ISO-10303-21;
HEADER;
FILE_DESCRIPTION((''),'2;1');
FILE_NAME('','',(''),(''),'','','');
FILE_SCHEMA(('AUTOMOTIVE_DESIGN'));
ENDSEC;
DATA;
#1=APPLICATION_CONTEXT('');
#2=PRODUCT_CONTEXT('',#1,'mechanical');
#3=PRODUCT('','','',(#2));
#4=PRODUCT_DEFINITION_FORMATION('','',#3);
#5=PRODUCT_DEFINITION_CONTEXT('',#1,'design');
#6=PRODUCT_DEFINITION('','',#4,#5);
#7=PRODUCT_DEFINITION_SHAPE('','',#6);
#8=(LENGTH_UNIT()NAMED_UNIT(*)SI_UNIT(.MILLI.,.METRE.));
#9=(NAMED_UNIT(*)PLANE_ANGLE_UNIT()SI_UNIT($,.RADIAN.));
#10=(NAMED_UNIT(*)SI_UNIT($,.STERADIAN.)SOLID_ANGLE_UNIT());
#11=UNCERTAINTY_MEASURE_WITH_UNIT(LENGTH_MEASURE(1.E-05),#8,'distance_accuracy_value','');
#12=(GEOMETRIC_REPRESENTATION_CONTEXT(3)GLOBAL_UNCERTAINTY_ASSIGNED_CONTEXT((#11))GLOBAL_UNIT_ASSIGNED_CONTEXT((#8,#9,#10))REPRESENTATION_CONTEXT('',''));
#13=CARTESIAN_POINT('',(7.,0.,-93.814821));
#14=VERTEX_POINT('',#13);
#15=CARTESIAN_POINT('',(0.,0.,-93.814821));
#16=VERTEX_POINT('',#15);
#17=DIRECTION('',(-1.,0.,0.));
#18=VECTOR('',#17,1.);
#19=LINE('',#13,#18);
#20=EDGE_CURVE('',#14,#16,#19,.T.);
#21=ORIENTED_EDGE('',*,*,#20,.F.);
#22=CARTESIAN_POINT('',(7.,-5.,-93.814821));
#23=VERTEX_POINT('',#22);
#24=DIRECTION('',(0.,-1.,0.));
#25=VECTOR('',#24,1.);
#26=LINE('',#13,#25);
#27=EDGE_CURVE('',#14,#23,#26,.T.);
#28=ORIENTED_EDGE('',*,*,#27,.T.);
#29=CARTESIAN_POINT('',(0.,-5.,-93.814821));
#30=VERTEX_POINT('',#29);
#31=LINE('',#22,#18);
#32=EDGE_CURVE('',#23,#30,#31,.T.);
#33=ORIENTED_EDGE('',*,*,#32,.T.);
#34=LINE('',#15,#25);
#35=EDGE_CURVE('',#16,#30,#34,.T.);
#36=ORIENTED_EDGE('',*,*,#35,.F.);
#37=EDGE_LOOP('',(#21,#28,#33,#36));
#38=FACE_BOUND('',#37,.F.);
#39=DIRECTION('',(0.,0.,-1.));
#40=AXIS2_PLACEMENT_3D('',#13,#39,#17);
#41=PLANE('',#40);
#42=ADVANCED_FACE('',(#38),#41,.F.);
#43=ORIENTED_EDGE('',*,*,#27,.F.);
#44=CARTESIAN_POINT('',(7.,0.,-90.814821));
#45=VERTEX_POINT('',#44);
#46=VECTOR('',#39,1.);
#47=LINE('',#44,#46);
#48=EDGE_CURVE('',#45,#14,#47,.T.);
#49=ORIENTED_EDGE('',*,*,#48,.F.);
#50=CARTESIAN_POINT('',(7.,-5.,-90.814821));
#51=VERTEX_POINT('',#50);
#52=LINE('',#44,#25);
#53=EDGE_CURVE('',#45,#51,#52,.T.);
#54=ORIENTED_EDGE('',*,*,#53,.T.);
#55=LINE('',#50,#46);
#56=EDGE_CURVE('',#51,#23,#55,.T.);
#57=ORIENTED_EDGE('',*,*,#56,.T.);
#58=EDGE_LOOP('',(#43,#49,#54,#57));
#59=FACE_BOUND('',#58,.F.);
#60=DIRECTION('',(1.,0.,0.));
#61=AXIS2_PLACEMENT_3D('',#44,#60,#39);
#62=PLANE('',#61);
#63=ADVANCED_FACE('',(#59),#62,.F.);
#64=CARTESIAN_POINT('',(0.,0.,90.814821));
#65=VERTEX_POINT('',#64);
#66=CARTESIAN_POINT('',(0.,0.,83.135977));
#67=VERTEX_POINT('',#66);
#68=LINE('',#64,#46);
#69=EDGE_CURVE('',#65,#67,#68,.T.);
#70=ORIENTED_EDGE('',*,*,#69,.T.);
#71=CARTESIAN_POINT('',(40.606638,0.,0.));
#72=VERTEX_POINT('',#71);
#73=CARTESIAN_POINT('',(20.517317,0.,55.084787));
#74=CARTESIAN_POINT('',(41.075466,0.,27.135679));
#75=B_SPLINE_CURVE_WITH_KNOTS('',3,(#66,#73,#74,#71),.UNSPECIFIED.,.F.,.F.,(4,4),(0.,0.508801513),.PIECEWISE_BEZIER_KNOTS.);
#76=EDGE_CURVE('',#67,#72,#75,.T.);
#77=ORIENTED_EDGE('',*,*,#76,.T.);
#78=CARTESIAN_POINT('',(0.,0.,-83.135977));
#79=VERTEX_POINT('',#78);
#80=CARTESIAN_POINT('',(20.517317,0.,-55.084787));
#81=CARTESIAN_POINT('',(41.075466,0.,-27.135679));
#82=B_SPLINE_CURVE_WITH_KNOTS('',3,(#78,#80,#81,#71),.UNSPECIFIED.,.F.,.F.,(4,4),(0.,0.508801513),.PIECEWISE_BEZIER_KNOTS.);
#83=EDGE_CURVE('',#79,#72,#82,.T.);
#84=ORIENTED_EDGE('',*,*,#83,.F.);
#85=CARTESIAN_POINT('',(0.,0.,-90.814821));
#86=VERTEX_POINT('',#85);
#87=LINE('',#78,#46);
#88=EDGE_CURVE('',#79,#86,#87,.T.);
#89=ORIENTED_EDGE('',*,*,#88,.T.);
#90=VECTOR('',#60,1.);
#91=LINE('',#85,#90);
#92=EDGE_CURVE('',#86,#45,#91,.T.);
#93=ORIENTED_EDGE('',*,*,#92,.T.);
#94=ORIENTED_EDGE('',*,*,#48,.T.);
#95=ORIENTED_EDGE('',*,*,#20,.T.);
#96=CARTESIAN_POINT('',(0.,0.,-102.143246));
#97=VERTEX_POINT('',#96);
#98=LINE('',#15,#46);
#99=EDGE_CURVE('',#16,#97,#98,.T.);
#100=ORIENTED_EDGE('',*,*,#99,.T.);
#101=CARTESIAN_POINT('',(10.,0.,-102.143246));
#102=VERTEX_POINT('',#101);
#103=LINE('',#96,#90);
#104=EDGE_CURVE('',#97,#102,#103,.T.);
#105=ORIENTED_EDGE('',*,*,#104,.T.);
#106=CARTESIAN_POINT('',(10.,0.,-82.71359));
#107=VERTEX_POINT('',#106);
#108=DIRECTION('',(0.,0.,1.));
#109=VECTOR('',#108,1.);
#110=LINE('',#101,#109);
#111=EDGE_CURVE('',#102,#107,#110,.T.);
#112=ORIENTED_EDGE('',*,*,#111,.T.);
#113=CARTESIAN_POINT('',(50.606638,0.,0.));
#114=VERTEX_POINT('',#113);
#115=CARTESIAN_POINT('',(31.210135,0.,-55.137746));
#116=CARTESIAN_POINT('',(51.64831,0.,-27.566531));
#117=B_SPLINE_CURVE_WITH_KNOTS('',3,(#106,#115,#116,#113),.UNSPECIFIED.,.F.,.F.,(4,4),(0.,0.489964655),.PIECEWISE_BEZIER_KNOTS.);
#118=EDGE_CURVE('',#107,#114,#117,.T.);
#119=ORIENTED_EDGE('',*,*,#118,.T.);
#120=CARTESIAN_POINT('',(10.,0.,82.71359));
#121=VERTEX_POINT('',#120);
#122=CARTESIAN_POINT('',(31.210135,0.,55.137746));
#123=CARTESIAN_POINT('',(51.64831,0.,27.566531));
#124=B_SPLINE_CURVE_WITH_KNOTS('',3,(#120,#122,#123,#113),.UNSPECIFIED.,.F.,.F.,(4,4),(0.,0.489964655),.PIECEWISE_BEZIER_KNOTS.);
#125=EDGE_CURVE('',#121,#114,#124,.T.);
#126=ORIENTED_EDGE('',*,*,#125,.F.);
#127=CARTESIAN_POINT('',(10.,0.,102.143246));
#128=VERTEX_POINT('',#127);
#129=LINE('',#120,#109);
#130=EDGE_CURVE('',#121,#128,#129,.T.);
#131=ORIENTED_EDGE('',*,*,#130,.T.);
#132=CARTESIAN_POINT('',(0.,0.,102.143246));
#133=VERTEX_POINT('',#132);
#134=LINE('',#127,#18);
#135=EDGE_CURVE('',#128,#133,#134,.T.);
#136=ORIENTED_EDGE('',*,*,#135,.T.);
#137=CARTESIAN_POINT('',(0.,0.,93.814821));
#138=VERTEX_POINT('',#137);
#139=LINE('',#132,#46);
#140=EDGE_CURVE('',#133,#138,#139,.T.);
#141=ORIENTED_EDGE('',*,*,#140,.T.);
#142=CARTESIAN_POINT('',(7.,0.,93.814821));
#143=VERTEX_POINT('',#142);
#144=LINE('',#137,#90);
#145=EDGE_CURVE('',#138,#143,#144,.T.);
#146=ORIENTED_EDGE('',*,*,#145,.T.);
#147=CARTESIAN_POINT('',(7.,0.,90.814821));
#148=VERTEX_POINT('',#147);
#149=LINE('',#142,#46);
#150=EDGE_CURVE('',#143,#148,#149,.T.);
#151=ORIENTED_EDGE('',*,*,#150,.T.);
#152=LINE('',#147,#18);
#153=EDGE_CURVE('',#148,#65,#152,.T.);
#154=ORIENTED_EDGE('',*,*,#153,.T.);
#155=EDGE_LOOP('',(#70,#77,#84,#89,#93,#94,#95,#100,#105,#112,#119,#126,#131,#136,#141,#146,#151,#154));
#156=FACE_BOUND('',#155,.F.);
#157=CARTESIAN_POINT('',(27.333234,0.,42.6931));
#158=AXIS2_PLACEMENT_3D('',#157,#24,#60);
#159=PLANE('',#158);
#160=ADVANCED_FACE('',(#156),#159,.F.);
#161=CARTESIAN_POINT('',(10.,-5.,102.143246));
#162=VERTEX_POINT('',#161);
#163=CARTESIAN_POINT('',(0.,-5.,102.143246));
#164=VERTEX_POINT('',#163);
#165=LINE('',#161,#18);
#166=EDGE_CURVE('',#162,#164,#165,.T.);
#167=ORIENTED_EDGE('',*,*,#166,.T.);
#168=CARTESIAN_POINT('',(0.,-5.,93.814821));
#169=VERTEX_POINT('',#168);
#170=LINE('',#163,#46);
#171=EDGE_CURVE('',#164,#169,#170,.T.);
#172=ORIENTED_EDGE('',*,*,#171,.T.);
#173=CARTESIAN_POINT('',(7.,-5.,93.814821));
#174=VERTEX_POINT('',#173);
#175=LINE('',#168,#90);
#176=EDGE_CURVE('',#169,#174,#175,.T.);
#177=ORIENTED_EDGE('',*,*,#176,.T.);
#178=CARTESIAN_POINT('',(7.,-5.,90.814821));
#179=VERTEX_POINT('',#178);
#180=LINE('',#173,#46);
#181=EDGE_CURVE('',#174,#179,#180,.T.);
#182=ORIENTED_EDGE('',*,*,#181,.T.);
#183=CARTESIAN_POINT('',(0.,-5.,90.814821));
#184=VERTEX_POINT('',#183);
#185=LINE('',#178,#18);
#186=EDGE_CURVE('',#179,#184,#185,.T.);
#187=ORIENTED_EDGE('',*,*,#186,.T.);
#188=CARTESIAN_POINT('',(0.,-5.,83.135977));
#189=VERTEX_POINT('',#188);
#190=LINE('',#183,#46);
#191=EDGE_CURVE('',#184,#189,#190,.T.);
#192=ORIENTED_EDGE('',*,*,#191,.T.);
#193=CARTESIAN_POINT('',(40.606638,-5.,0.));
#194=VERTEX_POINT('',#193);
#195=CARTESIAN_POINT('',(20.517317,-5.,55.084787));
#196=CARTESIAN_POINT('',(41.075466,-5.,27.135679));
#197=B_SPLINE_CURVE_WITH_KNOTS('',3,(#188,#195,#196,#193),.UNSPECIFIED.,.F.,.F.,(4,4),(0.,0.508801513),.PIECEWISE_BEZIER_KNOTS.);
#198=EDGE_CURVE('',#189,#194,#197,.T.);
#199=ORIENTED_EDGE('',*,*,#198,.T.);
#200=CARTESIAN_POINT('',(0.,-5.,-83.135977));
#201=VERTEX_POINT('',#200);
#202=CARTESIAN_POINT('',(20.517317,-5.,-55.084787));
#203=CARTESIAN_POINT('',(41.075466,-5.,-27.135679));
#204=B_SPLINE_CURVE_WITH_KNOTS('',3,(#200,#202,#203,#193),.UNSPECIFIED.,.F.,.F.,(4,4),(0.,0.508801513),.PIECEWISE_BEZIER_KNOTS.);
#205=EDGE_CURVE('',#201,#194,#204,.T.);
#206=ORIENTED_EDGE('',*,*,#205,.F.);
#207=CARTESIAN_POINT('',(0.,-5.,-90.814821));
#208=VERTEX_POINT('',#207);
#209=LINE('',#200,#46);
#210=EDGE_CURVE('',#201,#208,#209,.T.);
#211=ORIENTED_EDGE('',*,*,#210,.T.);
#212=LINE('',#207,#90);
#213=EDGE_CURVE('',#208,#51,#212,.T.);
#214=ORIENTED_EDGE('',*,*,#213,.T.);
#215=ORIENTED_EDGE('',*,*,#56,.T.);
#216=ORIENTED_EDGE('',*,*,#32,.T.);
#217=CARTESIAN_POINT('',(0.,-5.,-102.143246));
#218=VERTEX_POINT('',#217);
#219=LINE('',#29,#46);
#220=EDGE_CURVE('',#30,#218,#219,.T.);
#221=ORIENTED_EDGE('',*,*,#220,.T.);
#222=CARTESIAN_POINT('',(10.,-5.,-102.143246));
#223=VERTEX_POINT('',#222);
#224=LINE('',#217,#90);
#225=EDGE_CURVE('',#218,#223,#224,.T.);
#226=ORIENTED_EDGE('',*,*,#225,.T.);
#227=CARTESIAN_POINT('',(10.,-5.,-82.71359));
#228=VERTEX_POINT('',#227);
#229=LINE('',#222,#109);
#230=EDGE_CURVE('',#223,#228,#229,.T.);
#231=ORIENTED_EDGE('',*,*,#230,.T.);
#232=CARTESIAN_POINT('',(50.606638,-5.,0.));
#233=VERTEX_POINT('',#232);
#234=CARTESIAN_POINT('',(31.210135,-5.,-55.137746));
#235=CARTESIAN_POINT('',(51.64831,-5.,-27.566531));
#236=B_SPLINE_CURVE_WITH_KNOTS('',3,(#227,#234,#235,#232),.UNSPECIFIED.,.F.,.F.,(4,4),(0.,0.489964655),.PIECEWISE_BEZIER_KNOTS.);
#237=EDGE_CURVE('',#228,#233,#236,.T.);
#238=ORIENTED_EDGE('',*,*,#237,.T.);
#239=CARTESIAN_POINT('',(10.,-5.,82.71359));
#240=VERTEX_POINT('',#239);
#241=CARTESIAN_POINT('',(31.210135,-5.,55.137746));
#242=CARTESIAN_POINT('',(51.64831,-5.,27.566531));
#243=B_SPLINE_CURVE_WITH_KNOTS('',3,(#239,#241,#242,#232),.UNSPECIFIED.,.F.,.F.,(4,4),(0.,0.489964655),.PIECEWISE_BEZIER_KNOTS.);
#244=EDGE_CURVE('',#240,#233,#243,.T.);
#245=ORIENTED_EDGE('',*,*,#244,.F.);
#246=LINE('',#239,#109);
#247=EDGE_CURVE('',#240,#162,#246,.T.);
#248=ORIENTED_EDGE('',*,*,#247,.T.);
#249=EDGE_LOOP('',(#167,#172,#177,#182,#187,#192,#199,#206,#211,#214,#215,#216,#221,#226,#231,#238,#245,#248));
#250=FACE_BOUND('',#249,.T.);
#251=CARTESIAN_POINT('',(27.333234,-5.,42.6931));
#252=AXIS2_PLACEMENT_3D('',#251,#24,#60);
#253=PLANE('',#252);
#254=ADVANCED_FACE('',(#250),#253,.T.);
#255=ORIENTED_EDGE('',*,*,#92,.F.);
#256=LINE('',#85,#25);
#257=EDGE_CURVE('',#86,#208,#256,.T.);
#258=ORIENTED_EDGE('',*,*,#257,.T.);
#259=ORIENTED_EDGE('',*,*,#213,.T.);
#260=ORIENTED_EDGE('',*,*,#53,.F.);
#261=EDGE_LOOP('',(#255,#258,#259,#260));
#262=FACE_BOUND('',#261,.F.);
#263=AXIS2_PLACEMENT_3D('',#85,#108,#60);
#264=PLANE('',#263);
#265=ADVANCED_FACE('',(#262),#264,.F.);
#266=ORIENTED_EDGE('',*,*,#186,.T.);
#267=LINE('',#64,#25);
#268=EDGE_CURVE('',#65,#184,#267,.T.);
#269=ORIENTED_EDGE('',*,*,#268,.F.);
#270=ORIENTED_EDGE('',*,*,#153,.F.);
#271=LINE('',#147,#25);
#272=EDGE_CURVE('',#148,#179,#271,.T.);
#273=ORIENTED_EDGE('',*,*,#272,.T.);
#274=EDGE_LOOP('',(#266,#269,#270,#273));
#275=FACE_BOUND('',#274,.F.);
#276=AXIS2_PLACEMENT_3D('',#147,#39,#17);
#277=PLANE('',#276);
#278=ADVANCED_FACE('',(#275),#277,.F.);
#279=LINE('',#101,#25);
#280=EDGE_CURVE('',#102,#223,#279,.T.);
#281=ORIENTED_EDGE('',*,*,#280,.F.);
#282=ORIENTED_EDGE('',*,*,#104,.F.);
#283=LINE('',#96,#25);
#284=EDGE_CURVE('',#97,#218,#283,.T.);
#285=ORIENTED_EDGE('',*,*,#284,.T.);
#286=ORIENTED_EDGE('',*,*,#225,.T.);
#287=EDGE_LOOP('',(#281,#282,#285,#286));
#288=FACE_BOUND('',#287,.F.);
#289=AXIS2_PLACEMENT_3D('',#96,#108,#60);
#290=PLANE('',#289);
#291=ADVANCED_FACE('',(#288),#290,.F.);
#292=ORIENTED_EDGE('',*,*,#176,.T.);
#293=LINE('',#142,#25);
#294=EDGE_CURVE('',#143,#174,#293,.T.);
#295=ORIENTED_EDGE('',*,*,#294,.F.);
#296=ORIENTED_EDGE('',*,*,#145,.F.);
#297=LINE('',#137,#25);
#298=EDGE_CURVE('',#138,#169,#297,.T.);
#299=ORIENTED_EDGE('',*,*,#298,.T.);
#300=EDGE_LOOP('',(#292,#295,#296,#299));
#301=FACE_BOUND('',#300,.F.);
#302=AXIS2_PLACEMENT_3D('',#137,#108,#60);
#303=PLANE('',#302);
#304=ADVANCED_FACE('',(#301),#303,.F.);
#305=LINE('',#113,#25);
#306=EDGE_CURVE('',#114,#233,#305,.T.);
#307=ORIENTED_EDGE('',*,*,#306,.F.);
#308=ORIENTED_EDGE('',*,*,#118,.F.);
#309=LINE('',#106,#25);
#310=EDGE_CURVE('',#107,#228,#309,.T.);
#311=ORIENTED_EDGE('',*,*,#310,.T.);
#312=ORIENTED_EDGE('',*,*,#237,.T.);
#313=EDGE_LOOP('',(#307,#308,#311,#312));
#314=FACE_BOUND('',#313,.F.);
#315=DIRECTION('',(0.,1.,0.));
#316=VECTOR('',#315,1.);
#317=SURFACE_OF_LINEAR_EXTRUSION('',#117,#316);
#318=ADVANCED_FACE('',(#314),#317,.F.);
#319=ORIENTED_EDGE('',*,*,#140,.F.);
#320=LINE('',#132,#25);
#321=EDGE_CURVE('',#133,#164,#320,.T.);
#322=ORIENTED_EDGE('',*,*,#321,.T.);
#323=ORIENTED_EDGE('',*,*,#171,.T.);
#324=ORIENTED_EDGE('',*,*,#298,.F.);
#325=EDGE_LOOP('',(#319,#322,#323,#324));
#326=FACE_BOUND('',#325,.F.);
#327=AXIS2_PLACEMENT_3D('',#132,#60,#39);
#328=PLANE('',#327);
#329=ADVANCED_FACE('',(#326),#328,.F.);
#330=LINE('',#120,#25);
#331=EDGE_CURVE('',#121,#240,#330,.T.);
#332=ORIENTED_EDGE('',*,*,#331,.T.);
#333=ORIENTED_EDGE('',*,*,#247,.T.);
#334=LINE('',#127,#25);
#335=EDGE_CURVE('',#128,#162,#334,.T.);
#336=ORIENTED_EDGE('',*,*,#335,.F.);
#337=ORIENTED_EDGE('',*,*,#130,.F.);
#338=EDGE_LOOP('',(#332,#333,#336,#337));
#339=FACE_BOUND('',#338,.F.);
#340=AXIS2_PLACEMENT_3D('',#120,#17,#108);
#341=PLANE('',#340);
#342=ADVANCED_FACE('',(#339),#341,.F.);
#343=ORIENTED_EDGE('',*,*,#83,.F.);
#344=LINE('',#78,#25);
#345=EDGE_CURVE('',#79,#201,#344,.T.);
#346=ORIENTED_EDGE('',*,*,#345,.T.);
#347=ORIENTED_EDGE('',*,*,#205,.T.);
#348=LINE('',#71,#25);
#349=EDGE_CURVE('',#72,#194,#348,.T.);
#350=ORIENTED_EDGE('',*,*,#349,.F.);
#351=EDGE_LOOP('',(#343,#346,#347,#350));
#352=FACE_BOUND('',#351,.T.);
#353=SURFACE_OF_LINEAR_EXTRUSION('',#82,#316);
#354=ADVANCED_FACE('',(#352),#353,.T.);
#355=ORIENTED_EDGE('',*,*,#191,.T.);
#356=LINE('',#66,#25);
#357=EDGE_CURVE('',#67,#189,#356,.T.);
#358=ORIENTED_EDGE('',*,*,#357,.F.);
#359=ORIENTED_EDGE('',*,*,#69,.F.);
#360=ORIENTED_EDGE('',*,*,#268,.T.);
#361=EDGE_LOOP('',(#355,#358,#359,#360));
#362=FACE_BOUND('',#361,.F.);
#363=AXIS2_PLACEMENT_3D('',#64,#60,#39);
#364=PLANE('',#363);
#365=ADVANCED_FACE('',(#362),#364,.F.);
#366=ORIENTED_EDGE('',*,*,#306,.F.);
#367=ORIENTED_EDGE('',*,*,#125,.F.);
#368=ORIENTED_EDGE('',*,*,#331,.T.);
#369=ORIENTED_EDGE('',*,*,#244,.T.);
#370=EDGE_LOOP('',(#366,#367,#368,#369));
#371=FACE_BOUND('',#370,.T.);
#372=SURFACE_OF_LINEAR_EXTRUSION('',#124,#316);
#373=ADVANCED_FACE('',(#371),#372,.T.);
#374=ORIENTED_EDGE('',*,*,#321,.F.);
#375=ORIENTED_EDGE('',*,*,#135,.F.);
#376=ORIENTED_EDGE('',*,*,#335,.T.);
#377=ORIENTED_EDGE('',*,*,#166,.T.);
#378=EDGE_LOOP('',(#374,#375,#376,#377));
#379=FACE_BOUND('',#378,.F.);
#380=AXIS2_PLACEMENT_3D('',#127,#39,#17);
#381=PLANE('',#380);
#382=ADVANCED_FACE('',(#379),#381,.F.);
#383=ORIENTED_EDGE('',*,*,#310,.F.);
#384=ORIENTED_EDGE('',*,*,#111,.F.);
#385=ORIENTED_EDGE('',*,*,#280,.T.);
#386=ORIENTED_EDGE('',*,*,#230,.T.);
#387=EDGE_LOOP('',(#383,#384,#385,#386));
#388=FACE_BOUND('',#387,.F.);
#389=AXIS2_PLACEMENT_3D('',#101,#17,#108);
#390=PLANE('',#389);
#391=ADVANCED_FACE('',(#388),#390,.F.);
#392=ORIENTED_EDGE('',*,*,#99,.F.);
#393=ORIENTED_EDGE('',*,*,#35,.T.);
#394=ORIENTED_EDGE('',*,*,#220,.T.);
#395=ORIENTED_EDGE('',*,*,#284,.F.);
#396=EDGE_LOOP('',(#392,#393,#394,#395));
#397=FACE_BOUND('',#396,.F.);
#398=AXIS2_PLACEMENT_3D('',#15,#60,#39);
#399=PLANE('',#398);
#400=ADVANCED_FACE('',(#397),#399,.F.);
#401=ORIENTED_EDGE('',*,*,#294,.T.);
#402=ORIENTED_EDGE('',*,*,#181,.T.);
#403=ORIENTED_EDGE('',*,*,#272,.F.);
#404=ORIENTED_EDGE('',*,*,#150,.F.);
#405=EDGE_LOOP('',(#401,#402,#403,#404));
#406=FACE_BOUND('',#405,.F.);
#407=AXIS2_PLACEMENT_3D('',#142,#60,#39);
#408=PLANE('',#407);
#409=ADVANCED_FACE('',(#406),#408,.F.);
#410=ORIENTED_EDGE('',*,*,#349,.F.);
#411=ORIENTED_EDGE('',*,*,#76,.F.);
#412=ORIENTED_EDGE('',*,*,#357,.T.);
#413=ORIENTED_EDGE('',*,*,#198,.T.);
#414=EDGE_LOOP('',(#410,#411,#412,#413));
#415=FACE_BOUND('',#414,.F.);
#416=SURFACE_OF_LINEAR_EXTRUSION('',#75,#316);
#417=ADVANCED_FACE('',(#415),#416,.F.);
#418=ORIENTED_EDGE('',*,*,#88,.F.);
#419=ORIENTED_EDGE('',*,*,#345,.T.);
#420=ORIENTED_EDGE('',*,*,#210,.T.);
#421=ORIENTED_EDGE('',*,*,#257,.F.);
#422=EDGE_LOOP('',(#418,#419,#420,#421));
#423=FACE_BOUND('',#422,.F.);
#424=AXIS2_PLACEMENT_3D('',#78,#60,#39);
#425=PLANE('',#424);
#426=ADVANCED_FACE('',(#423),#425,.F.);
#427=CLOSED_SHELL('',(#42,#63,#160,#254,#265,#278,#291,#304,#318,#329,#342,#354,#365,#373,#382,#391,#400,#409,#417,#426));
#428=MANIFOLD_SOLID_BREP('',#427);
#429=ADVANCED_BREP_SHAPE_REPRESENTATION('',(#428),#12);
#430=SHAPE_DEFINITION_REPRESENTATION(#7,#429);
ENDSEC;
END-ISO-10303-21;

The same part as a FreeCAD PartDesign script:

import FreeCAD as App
import Part
import Sketcher
from FreeCAD import Vector
Q = App.Units.Quantity

doc = App.newDocument("Part")
params = doc.addObject("Spreadsheet::Sheet", "Params")
for row, (alias, value) in enumerate([
    ("sketch1_width", "7 mm"),
    ("sketch1_height", "3 mm"),
    ("pad1_length", "5 mm"),
], start=1):
    params.set(f"A{row}", alias)
    params.set(f"B{row}", "=" + value)
    params.setAlias(f"B{row}", alias)

body = doc.addObject("PartDesign::Body", "Body")

# Sketch on XZ plane
sketch1 = doc.addObject("Sketcher::SketchObject", "Sketch")
body.addObject(sketch1)
sketch1.AttachmentSupport = (doc.XZ_Plane, [""])
sketch1.MapMode = "FlatFace"
sketch1.addGeometry([
    Part.BSplineCurve([Vector(0, 83.135977, 0), Vector(20.517317, 55.084787, 0), Vector(41.075466, 27.135679, 0), Vector(40.606638, 0, 0)], [4, 4], [0, 0.508801513], False, 3, [1, 1, 1, 1], False),  # 0
    Part.BSplineCurve([Vector(0, -83.135977, 0), Vector(20.517317, -55.084787, 0), Vector(41.075466, -27.135679, 0), Vector(40.606638, 0, 0)], [4, 4], [0, 0.508801513], False, 3, [1, 1, 1, 1], False),  # 1
    Part.LineSegment(Vector(0, -83.135977, 0), Vector(0, -90.814821, 0)),  # 2
    Part.LineSegment(Vector(0, -90.814821, 0), Vector(7, -90.814821, 0)),  # 3
    Part.LineSegment(Vector(7, -90.814821, 0), Vector(7, -93.814821, 0)),  # 4
    Part.LineSegment(Vector(7, -93.814821, 0), Vector(0, -93.814821, 0)),  # 5
    Part.LineSegment(Vector(0, -93.814821, 0), Vector(0, -102.143246, 0)),  # 6
    Part.LineSegment(Vector(0, -102.143246, 0), Vector(10, -102.143246, 0)),  # 7
    Part.LineSegment(Vector(10, -102.143246, 0), Vector(10, -82.71359, 0)),  # 8
    Part.BSplineCurve([Vector(10, -82.71359, 0), Vector(31.210135, -55.137746, 0), Vector(51.64831, -27.566531, 0), Vector(50.606638, 0, 0)], [4, 4], [0, 0.489964655], False, 3, [1, 1, 1, 1], False),  # 9
    Part.BSplineCurve([Vector(10, 82.71359, 0), Vector(31.210135, 55.137746, 0), Vector(51.64831, 27.566531, 0), Vector(50.606638, 0, 0)], [4, 4], [0, 0.489964655], False, 3, [1, 1, 1, 1], False),  # 10
    Part.LineSegment(Vector(10, 82.71359, 0), Vector(10, 102.143246, 0)),  # 11
    Part.LineSegment(Vector(10, 102.143246, 0), Vector(0, 102.143246, 0)),  # 12
    Part.LineSegment(Vector(0, 102.143246, 0), Vector(0, 93.814821, 0)),  # 13
    Part.LineSegment(Vector(0, 93.814821, 0), Vector(7, 93.814821, 0)),  # 14
    Part.LineSegment(Vector(7, 93.814821, 0), Vector(7, 90.814821, 0)),  # 15
    Part.LineSegment(Vector(7, 90.814821, 0), Vector(0, 90.814821, 0)),  # 16
    Part.LineSegment(Vector(0, 90.814821, 0), Vector(0, 83.135977, 0)),  # 17
], False)
sketch1.addConstraint([
    Sketcher.Constraint("Block", 0),
    Sketcher.Constraint("Block", 1),
    Sketcher.Constraint("Block", 9),
    Sketcher.Constraint("Block", 10),
    Sketcher.Constraint("Coincident", 1, 1, 2, 1),
    Sketcher.Constraint("Coincident", 2, 2, 3, 1),
    Sketcher.Constraint("Coincident", 3, 2, 4, 1),
    Sketcher.Constraint("Coincident", 4, 2, 5, 1),
    Sketcher.Constraint("Coincident", 5, 2, 6, 1),
    Sketcher.Constraint("Coincident", 6, 2, 7, 1),
    Sketcher.Constraint("Coincident", 7, 2, 8, 1),
    Sketcher.Constraint("Coincident", 8, 2, 9, 1),
    Sketcher.Constraint("Coincident", 10, 1, 11, 1),
    Sketcher.Constraint("Coincident", 11, 2, 12, 1),
    Sketcher.Constraint("Coincident", 12, 2, 13, 1),
    Sketcher.Constraint("Coincident", 13, 2, 14, 1),
    Sketcher.Constraint("Coincident", 14, 2, 15, 1),
    Sketcher.Constraint("Coincident", 15, 2, 16, 1),
    Sketcher.Constraint("Coincident", 16, 2, 17, 1),
    Sketcher.Constraint("Coincident", 17, 2, 0, 1),
    Sketcher.Constraint("Vertical", 2),
    Sketcher.Constraint("Horizontal", 3),
    Sketcher.Constraint("Vertical", 4),
    Sketcher.Constraint("Horizontal", 5),
    Sketcher.Constraint("Vertical", 6),
    Sketcher.Constraint("Horizontal", 7),
    Sketcher.Constraint("Vertical", 8),
    Sketcher.Constraint("Vertical", 11),
    Sketcher.Constraint("Horizontal", 12),
    Sketcher.Constraint("Vertical", 13),
    Sketcher.Constraint("Horizontal", 14),
    Sketcher.Constraint("Vertical", 15),
    Sketcher.Constraint("Horizontal", 16),
    Sketcher.Constraint("Vertical", 17),
    Sketcher.Constraint("Symmetric", 6, 2, 12, 2, -1, 1),
    Sketcher.Constraint("Symmetric", 5, 2, 13, 2, -1),
    Sketcher.Constraint("Symmetric", 3, 2, 15, 2, -1),
    Sketcher.Constraint("DistanceX", 3, 1, 3, 2, Q("7 mm")),
    Sketcher.Constraint("DistanceY", 4, 2, 4, 1, Q("3 mm")),
    Sketcher.Constraint("DistanceY", 2, 2, 2, 1, Q("7.678845 mm")),
    Sketcher.Constraint("DistanceY", 6, 2, 6, 1, Q("8.328425 mm")),
])
sketch1.setExpression("Constraints[37]", "Params.sketch1_width")
sketch1.setExpression("Constraints[38]", "Params.sketch1_height")
pad1 = doc.addObject("PartDesign::Pad", "Pad")
body.addObject(pad1)
pad1.Profile = sketch1
pad1.setExpression("Length", "Params.pad1_length")

doc.recompute()
